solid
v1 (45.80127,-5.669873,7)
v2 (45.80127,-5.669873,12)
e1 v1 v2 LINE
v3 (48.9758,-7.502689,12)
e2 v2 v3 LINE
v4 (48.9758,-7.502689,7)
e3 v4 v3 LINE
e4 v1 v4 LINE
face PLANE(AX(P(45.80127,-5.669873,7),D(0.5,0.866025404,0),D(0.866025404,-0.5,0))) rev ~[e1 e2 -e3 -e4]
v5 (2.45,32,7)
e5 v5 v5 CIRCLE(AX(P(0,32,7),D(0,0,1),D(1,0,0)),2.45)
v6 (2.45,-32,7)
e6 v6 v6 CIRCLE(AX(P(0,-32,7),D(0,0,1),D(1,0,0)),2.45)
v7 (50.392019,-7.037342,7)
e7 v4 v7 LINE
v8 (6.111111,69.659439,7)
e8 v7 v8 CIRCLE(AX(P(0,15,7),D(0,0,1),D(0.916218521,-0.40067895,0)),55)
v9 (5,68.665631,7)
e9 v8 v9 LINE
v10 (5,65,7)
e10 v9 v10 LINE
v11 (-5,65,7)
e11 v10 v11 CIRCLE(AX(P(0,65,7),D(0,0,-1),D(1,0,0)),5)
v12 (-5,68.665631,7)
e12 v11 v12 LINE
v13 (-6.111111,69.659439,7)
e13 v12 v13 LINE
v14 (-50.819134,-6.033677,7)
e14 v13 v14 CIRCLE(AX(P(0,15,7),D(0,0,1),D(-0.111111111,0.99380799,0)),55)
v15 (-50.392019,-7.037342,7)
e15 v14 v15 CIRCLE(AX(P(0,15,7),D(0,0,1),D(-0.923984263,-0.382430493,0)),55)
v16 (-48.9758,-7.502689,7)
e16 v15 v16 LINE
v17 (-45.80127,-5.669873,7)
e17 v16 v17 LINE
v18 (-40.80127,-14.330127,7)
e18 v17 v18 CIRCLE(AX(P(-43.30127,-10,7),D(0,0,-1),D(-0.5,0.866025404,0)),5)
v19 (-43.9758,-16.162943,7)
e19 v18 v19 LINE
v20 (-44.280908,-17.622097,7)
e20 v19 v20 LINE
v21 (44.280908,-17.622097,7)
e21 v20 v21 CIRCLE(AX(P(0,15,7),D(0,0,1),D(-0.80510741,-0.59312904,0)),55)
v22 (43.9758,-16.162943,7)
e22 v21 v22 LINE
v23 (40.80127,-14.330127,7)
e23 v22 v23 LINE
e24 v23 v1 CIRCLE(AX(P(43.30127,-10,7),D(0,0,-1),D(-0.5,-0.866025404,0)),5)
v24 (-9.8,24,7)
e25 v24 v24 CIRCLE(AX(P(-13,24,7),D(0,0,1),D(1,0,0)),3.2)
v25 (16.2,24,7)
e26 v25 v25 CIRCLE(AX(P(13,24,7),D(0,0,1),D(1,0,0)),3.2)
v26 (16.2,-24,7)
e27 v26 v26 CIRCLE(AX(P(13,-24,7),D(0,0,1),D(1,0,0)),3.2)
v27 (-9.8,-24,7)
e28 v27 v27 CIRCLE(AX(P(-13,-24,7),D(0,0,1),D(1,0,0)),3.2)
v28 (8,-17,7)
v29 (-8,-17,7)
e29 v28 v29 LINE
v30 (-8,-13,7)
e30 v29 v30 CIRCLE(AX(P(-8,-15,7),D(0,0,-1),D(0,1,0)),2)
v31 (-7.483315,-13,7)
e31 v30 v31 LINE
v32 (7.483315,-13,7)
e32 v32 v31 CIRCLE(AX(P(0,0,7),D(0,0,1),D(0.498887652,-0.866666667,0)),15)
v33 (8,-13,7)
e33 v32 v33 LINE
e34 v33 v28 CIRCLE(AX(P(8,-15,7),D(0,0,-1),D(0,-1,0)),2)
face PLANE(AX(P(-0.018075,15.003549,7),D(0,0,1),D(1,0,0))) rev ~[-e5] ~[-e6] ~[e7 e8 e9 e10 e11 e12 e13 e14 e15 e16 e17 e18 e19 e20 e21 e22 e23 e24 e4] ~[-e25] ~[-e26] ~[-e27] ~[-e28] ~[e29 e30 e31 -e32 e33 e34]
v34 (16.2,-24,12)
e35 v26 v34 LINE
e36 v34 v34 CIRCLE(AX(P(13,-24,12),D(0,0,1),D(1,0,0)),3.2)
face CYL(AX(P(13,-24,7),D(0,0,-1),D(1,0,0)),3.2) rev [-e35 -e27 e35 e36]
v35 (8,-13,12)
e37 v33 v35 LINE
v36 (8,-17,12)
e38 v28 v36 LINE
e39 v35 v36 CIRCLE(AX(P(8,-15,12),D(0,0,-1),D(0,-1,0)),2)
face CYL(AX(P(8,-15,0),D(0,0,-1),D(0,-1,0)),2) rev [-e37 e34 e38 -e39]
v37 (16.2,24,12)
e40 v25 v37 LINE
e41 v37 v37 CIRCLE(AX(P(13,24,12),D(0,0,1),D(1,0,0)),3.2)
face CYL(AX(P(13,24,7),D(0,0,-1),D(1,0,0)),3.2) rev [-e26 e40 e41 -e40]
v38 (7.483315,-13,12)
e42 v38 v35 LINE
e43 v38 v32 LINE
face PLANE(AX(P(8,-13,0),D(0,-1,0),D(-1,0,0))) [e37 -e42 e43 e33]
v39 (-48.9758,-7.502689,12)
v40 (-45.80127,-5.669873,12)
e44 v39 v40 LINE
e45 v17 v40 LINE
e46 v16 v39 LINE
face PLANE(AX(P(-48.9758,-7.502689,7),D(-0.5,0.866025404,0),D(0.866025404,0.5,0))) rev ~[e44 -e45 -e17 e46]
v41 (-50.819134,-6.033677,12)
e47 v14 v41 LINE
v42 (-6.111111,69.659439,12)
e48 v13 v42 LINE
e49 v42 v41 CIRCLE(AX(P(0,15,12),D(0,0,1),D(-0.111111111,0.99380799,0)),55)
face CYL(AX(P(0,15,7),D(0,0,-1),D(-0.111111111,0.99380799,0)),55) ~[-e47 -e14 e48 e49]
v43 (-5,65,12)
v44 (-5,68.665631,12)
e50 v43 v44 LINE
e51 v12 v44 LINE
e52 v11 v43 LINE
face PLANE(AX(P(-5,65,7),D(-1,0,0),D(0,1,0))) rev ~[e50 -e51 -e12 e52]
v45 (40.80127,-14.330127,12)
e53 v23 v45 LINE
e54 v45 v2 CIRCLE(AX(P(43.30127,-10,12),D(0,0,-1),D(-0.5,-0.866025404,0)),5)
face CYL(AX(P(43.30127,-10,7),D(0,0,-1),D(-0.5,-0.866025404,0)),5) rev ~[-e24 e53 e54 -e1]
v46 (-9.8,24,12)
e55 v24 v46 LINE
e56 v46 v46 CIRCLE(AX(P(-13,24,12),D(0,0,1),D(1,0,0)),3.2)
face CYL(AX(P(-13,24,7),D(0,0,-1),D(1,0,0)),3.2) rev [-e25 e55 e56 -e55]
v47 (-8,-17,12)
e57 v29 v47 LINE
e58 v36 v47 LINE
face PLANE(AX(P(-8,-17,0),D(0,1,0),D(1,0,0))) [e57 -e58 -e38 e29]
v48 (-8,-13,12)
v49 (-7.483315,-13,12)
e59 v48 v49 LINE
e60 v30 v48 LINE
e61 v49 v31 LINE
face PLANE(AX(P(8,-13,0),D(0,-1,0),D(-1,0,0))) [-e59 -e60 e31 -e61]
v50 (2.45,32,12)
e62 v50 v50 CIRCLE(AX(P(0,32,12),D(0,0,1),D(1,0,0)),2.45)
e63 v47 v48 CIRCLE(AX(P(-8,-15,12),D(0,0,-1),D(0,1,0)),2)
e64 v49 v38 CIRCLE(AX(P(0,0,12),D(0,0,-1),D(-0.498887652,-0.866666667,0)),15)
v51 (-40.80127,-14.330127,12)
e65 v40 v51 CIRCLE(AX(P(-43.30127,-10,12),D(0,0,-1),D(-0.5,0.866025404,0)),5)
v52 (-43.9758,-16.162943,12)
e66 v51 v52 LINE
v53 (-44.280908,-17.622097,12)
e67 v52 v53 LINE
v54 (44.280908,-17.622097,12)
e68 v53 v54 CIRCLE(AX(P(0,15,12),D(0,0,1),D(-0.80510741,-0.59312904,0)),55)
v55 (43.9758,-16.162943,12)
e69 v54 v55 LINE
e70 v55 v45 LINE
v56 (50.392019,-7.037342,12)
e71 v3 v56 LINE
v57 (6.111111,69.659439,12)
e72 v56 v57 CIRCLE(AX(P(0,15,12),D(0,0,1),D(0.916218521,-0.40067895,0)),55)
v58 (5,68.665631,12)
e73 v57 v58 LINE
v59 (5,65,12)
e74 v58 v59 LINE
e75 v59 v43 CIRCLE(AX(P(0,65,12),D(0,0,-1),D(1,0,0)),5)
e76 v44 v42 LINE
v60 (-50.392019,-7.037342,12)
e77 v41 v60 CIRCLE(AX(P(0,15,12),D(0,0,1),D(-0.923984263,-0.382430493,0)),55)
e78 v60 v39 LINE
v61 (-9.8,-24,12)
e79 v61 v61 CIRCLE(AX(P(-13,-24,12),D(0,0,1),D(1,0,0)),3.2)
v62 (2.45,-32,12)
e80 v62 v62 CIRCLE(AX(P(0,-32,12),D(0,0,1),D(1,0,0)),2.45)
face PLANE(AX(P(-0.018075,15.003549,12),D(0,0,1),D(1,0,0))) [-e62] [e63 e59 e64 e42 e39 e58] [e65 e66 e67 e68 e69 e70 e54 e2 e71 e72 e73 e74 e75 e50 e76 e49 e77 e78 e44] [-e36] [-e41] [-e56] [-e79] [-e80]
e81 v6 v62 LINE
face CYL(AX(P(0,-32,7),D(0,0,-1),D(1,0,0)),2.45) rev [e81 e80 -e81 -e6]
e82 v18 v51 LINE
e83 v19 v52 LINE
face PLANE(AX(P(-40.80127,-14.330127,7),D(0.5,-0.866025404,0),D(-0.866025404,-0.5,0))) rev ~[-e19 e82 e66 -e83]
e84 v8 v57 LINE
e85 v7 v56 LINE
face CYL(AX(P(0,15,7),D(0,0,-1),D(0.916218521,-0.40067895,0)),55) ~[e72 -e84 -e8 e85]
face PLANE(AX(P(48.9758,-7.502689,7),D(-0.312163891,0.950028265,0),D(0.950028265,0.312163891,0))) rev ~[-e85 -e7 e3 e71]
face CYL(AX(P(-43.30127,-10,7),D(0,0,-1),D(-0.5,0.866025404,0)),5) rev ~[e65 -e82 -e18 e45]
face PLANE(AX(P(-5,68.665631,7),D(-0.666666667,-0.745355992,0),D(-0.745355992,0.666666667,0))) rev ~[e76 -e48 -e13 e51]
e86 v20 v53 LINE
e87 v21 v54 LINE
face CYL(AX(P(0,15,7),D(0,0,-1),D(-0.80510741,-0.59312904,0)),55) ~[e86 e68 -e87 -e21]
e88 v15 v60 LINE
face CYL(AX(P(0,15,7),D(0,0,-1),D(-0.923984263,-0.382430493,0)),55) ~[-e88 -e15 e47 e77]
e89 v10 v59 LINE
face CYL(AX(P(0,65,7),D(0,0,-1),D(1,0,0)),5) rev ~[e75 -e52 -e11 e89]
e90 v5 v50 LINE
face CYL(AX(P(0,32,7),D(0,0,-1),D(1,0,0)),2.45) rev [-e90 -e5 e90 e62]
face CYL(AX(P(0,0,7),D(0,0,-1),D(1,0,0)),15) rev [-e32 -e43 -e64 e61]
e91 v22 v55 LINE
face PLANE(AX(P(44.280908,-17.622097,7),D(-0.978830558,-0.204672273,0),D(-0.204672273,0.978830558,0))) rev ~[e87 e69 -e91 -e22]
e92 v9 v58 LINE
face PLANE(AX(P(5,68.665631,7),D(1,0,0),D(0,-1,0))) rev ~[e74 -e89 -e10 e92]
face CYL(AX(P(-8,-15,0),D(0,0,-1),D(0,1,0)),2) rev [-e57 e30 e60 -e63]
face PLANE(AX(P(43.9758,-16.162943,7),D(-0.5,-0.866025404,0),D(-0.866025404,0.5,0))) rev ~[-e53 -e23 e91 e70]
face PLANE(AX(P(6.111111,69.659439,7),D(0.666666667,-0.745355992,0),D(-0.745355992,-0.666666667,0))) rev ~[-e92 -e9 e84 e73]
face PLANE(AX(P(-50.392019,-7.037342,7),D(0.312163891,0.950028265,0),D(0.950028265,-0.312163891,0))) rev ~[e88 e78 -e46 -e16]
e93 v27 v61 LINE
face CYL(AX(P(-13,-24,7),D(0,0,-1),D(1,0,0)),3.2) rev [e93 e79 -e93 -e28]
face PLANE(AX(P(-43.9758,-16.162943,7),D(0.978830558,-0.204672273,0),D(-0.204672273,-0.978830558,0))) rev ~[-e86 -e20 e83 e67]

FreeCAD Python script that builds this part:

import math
import FreeCAD as App
import Part
import Sketcher
Q = App.Units.Quantity

doc = App.newDocument("Part")
params = doc.addObject("Spreadsheet::Sheet", "Params")
for row, (alias, value) in enumerate([
    ("sketch1_diameter", "30 mm"),
    ("sketch1_radius", "55 mm"),
    ("sketch1_radius2", "5 mm"),
    ("sketch1_diameter2", "6.4 mm"),
    ("sketch1_diameter3", "4.9 mm"),
    ("pad1_length", "5 mm"),
    ("sketch2_radius", "2 mm"),
    ("sketch2_width", "16 mm"),
], start=1):
    params.set(f"A{row}", alias)
    params.set(f"B{row}", "=" + value)
    params.setAlias(f"B{row}", alias)

body = doc.addObject("PartDesign::Body", "Body")

sketch1 = body.newObject("Sketcher::SketchObject", "Sketch")
sketch1.AttachmentSupport = (doc.getObject("XY_Plane"), [""])
sketch1.MapMode = "FlatFace"
sketch1.AttachmentOffset = App.Placement(App.Vector(0, 0, 7), App.Rotation())
sketch1.addGeometry(Part.LineSegment(App.Vector(49, -7.5, 0), App.Vector(50.4, -7, 0)), False)
sketch1.addGeometry(Part.ArcOfCircle(Part.Circle(App.Vector(0, 15, 0), App.Vector(0, 0, 1), 55), math.radians(-24), math.radians(84)), False)
sketch1.addGeometry(Part.LineSegment(App.Vector(6.1, 69.7, 0), App.Vector(5, 68.7, 0)), False)
sketch1.addGeometry(Part.LineSegment(App.Vector(5, 68.7, 0), App.Vector(5, 65, 0)), False)
sketch1.addGeometry(Part.ArcOfCircle(Part.Circle(App.Vector(0, 65, 0), App.Vector(0, 0, 1), 5), math.radians(180), math.radians(360)), False)
sketch1.addGeometry(Part.LineSegment(App.Vector(-5, 65, 0), App.Vector(-5, 68.7, 0)), False)
sketch1.addGeometry(Part.LineSegment(App.Vector(-5, 68.7, 0), App.Vector(-6.1, 69.7, 0)), False)
sketch1.addGeometry(Part.ArcOfCircle(Part.Circle(App.Vector(0, 15, 0), App.Vector(0, 0, 1), 55), math.radians(96), math.radians(202)), False)
sketch1.addGeometry(Part.ArcOfCircle(Part.Circle(App.Vector(0, 15, 0), App.Vector(0, 0, 1), 55), math.radians(-157.52), math.radians(-156.38)), False)
sketch1.addGeometry(Part.LineSegment(App.Vector(-50.4, -7, 0), App.Vector(-49, -7.5, 0)), False)
sketch1.addGeometry(Part.LineSegment(App.Vector(-49, -7.5, 0), App.Vector(-45.8, -5.7, 0)), False)
sketch1.addGeometry(Part.ArcOfCircle(Part.Circle(App.Vector(-43.3, -10, 0), App.Vector(0, 0, 1), 5), math.radians(-60), math.radians(120)), False)
sketch1.addGeometry(Part.LineSegment(App.Vector(-40.8, -14.3, 0), App.Vector(-44, -16.2, 0)), False)
sketch1.addGeometry(Part.LineSegment(App.Vector(-44, -16.2, 0), App.Vector(-44.3, -17.6, 0)), False)
sketch1.addGeometry(Part.ArcOfCircle(Part.Circle(App.Vector(0, 15, 0), App.Vector(0, 0, 1), 55), math.radians(-144), math.radians(-36)), False)
sketch1.addGeometry(Part.LineSegment(App.Vector(44.3, -17.6, 0), App.Vector(44, -16.2, 0)), False)
sketch1.addGeometry(Part.LineSegment(App.Vector(44, -16.2, 0), App.Vector(40.8, -14.3, 0)), False)
sketch1.addGeometry(Part.ArcOfCircle(Part.Circle(App.Vector(43.3, -10, 0), App.Vector(0, 0, 1), 5), math.radians(60), math.radians(240)), False)
sketch1.addGeometry(Part.LineSegment(App.Vector(45.8, -5.7, 0), App.Vector(49, -7.5, 0)), False)
sketch1.addGeometry(Part.Circle(App.Vector(-13, -24, 0), App.Vector(0, 0, 1), 3.2), False)
sketch1.addGeometry(Part.Circle(App.Vector(0, -32, 0), App.Vector(0, 0, 1), 2.5), False)
sketch1.addGeometry(Part.Circle(App.Vector(13, -24, 0), App.Vector(0, 0, 1), 3.2), False)
sketch1.addGeometry(Part.Circle(App.Vector(-13, 24, 0), App.Vector(0, 0, 1), 3.2), False)
sketch1.addGeometry(Part.Circle(App.Vector(0, 0, 0), App.Vector(0, 0, 1), 15), False)
sketch1.addGeometry(Part.Circle(App.Vector(0, 32, 0), App.Vector(0, 0, 1), 2.5), False)
sketch1.addGeometry(Part.Circle(App.Vector(13, 24, 0), App.Vector(0, 0, 1), 3.2), False)
sketch1.addConstraint(Sketcher.Constraint("Coincident", 0, 2, 1, 1))
sketch1.addConstraint(Sketcher.Constraint("Coincident", 1, 2, 2, 1))
sketch1.addConstraint(Sketcher.Constraint("Coincident", 2, 2, 3, 1))
sketch1.addConstraint(Sketcher.Constraint("Tangent", 3, 2, 4, 2))
sketch1.addConstraint(Sketcher.Constraint("Tangent", 4, 1, 5, 1))
sketch1.addConstraint(Sketcher.Constraint("Coincident", 5, 2, 6, 1))
sketch1.addConstraint(Sketcher.Constraint("Coincident", 6, 2, 7, 1))
sketch1.addConstraint(Sketcher.Constraint("Tangent", 7, 2, 8, 1))
sketch1.addConstraint(Sketcher.Constraint("Coincident", 8, 2, 9, 1))
sketch1.addConstraint(Sketcher.Constraint("Coincident", 9, 2, 10, 1))
sketch1.addConstraint(Sketcher.Constraint("Tangent", 10, 2, 11, 2))
sketch1.addConstraint(Sketcher.Constraint("Tangent", 11, 1, 12, 1))
sketch1.addConstraint(Sketcher.Constraint("Coincident", 12, 2, 13, 1))
sketch1.addConstraint(Sketcher.Constraint("Coincident", 13, 2, 14, 1))
sketch1.addConstraint(Sketcher.Constraint("Coincident", 14, 2, 15, 1))
sketch1.addConstraint(Sketcher.Constraint("Coincident", 15, 2, 16, 1))
sketch1.addConstraint(Sketcher.Constraint("Tangent", 16, 2, 17, 2))
sketch1.addConstraint(Sketcher.Constraint("Tangent", 17, 1, 18, 1))
sketch1.addConstraint(Sketcher.Constraint("Coincident", 18, 2, 0, 1))
sketch1.addConstraint(Sketcher.Constraint("Vertical", 3))
sketch1.addConstraint(Sketcher.Constraint("Vertical", 5))
sketch1.addConstraint(Sketcher.Constraint("Coincident", 23, 3, -1, 1))
sketch1.addConstraint(Sketcher.Constraint("Coincident", 7, 3, 1, 3))
sketch1.addConstraint(Sketcher.Constraint("Coincident", 14, 3, 1, 3))
sketch1.addConstraint(Sketcher.Constraint("Equal", 1, 7))
sketch1.addConstraint(Sketcher.Constraint("Equal", 7, 8))
sketch1.addConstraint(Sketcher.Constraint("Equal", 4, 11))
sketch1.addConstraint(Sketcher.Constraint("Equal", 8, 14))
sketch1.addConstraint(Sketcher.Constraint("Equal", 11, 17))
sketch1.addConstraint(Sketcher.Constraint("Equal", 19, 21))
sketch1.addConstraint(Sketcher.Constraint("Equal", 21, 22))
sketch1.addConstraint(Sketcher.Constraint("Equal", 20, 24))
sketch1.addConstraint(Sketcher.Constraint("Equal", 22, 25))
sketch1.addConstraint(Sketcher.Constraint("Symmetric", 21, 3, 22, 3, -1, 1))
sketch1.addConstraint(Sketcher.Constraint("Symmetric", 20, 3, 24, 3, -1, 1))
sketch1.addConstraint(Sketcher.Constraint("Symmetric", 19, 3, 25, 3, -1, 1))
sketch1.addConstraint(Sketcher.Constraint("Symmetric", 11, 3, 17, 3, -2))
sketch1.addConstraint(Sketcher.Constraint("Symmetric", 19, 3, 21, 3, -2))
sketch1.addConstraint(Sketcher.Constraint("Symmetric", 2, 2, 5, 2, -2))
sketch1.addConstraint(Sketcher.Constraint("Symmetric", 1, 2, 6, 2, -2))
sketch1.addConstraint(Sketcher.Constraint("Symmetric", 12, 2, 15, 2, -2))
sketch1.addConstraint(Sketcher.Constraint("Symmetric", 9, 2, 18, 2, -2))
sketch1.addConstraint(Sketcher.Constraint("PointOnObject", 20, 3, -2))
sketch1.addConstraint(Sketcher.Constraint("Parallel", 10, 12))
sketch1.addConstraint(Sketcher.Constraint("Horizontal", 0, 2, 8, 2))
sketch1.addConstraint(Sketcher.Constraint("Horizontal", 13, 2, 14, 2))
sketch1.addConstraint(Sketcher.Constraint("Equal", 0, 2))
sketch1.addConstraint(Sketcher.Constraint("Equal", 10, 12))
sketch1.addConstraint(Sketcher.Constraint("Equal", 9, 13))
sketch1.addConstraint(Sketcher.Constraint("Diameter", 23, Q("30 mm")))
sketch1.addConstraint(Sketcher.Constraint("Radius", 1, Q("55 mm")))
sketch1.addConstraint(Sketcher.Constraint("Radius", 4, Q("5 mm")))
sketch1.addConstraint(Sketcher.Constraint("Diameter", 19, Q("6.4 mm")))
sketch1.addConstraint(Sketcher.Constraint("Diameter", 20, Q("4.9 mm")))
sketch1.addConstraint(Sketcher.Constraint("Angle", 10, Q("30 deg")))
sketch1.addConstraint(Sketcher.Constraint("DistanceY", -1, 1, 1, 3, Q("15 mm")))
sketch1.addConstraint(Sketcher.Constraint("DistanceY", -1, 1, 4, 3, Q("65 mm")))
sketch1.addConstraint(Sketcher.Constraint("DistanceY", 11, 3, -1, 1, Q("10 mm")))
sketch1.addConstraint(Sketcher.Constraint("DistanceX", 19, 3, -1, 1, Q("13 mm")))
sketch1.addConstraint(Sketcher.Constraint("DistanceY", 19, 3, -1, 1, Q("24 mm")))
sketch1.addConstraint(Sketcher.Constraint("DistanceY", 20, 3, -1, 1, Q("32 mm")))
sketch1.addConstraint(Sketcher.Constraint("DistanceY", 3, 2, 3, 1, Q("3.665631 mm")))
sketch1.addConstraint(Sketcher.Constraint("DistanceX", 9, 2, -1, 1, Q("48.9758 mm")))
sketch1.addConstraint(Sketcher.Constraint("DistanceY", 12, 2, 8, 2, Q("9.1256 mm")))
sketch1.addConstraint(Sketcher.Constraint("Distance", 0, Q("1.490712 mm")))
sketch1.addConstraint(Sketcher.Constraint("DistanceY", 9, 2, 7, 2, Q("1.469012 mm")))
sketch1.setExpression("Constraints[49]", "Params.sketch1_diameter")
sketch1.setExpression("Constraints[50]", "Params.sketch1_radius")
sketch1.setExpression("Constraints[51]", "Params.sketch1_radius2")
sketch1.setExpression("Constraints[52]", "Params.sketch1_diameter2")
sketch1.setExpression("Constraints[53]", "Params.sketch1_diameter3")
pad1 = body.newObject("PartDesign::Pad", "Pad")
pad1.Profile = sketch1
pad1.setExpression("Length", "Params.pad1_length")

sketch2 = body.newObject("Sketcher::SketchObject", "Sketch001")
sketch2.AttachmentSupport = (doc.getObject("XY_Plane"), [""])
sketch2.MapMode = "FlatFace"
sketch2.addGeometry(Part.ArcOfCircle(Part.Circle(App.Vector(-8, -15, 0), App.Vector(0, 0, 1), 2), math.radians(90), math.radians(270)), False)
sketch2.addGeometry(Part.LineSegment(App.Vector(-8, -17, 0), App.Vector(8, -17, 0)), False)
sketch2.addGeometry(Part.ArcOfCircle(Part.Circle(App.Vector(8, -15, 0), App.Vector(0, 0, 1), 2), math.radians(-90), math.radians(90)), False)
sketch2.addGeometry(Part.LineSegment(App.Vector(8, -13, 0), App.Vector(-8, -13, 0)), False)
sketch2.addConstraint(Sketcher.Constraint("Tangent", 0, 2, 1, 1))
sketch2.addConstraint(Sketcher.Constraint("Tangent", 1, 2, 2, 1))
sketch2.addConstraint(Sketcher.Constraint("Tangent", 2, 2, 3, 1))
sketch2.addConstraint(Sketcher.Constraint("Tangent", 3, 2, 0, 1))
sketch2.addConstraint(Sketcher.Constraint("Horizontal", 1))
sketch2.addConstraint(Sketcher.Constraint("Horizontal", 3))
sketch2.addConstraint(Sketcher.Constraint("Radius", 0, Q("2 mm")))
sketch2.addConstraint(Sketcher.Constraint("DistanceX", 1, 1, 1, 2, Q("16 mm")))
sketch2.addConstraint(Sketcher.Constraint("DistanceX", 0, 3, -1, 1, Q("8 mm")))
sketch2.addConstraint(Sketcher.Constraint("DistanceY", 0, 3, -1, 1, Q("15 mm")))
sketch2.setExpression("Constraints[6]", "Params.sketch2_radius")
sketch2.setExpression("Constraints[7]", "Params.sketch2_width")
pocket1 = body.newObject("PartDesign::Pocket", "Pocket")
pocket1.Profile = sketch2
pocket1.Type = "ThroughAll"
pocket1.Midplane = True

doc.recompute()
